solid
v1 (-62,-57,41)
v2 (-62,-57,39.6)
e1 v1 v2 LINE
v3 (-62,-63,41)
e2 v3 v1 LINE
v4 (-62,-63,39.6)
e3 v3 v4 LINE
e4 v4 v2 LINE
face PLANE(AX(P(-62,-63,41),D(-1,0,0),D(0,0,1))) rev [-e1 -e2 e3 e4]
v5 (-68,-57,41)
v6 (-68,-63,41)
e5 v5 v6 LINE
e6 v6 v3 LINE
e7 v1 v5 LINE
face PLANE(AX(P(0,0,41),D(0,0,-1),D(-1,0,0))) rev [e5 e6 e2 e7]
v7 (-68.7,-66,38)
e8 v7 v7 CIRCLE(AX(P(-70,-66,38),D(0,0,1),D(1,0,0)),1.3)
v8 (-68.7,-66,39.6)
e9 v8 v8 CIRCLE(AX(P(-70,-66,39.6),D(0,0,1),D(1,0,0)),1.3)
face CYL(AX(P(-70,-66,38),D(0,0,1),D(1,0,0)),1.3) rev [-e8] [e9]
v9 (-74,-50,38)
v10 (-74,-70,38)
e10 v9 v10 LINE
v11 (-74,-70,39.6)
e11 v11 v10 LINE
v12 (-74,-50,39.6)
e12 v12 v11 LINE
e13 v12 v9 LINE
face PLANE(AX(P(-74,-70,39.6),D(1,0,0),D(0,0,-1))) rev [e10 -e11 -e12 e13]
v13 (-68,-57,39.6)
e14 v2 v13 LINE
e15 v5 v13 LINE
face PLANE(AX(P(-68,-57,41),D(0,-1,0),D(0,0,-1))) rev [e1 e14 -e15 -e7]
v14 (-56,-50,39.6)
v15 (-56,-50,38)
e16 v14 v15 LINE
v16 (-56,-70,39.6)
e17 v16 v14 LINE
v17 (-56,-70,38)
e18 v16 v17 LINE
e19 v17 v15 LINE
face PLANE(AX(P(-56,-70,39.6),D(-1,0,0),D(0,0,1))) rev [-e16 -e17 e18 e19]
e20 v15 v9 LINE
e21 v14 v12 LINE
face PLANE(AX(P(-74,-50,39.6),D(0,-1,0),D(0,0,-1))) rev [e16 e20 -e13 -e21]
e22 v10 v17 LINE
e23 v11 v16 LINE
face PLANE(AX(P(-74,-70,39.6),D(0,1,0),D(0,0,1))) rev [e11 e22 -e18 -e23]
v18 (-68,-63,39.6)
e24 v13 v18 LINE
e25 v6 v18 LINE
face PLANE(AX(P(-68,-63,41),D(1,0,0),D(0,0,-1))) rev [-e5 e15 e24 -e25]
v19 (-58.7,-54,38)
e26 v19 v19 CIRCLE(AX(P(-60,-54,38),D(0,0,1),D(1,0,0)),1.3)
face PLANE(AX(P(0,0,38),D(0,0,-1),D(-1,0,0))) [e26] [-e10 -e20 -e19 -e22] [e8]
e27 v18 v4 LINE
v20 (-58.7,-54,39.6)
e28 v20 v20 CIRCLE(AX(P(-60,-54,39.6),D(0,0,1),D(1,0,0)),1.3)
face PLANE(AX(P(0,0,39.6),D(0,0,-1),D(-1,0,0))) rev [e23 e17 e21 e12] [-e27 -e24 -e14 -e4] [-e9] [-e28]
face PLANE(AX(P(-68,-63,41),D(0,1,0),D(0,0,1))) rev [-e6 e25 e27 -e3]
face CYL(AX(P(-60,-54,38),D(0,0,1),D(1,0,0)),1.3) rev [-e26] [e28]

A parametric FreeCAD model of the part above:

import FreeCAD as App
import Part
import Sketcher
from FreeCAD import Vector

doc = App.newDocument("Part")
body = doc.addObject("PartDesign::Body", "Body")

# Sketch on XY plane
sketch1 = body.newObject("Sketcher::SketchObject", "Sketch")
sketch1.AttachmentSupport = (doc.getObject("XY_Plane"), [""])
sketch1.MapMode = "FlatFace"
sketch1.AttachmentOffset = App.Placement(Vector(0, 0, 38), App.Rotation())
sketch1.addGeometry([
    Part.LineSegment(Vector(-74, -50, 0), Vector(-74, -70, 0)),
    Part.LineSegment(Vector(-74, -70, 0), Vector(-56, -70, 0)),
    Part.LineSegment(Vector(-56, -70, 0), Vector(-56, -50, 0)),
    Part.LineSegment(Vector(-56, -50, 0), Vector(-74, -50, 0)),
], False)
sketch1.addConstraint([
    Sketcher.Constraint("Coincident", 0, 2, 1, 1),
    Sketcher.Constraint("Coincident", 1, 2, 2, 1),
    Sketcher.Constraint("Coincident", 2, 2, 3, 1),
    Sketcher.Constraint("Coincident", 3, 2, 0, 1),
    Sketcher.Constraint("Vertical", 0),
    Sketcher.Constraint("Horizontal", 1),
    Sketcher.Constraint("Vertical", 2),
    Sketcher.Constraint("Horizontal", 3),
    Sketcher.Constraint("DistanceX", 1, 1, 1, 2, 18.0),
    Sketcher.Constraint("DistanceY", 0, 2, 0, 1, 20.0),
    Sketcher.Constraint("DistanceX", 0, 2, -1, 1, 74.0),
    Sketcher.Constraint("DistanceY", 0, 2, -1, 1, 70.0),
])
pad1 = body.newObject("PartDesign::Pad", "Pad")
pad1.Profile = sketch1
pad1.Length = 1.6

# Sketch on XY plane
sketch2 = body.newObject("Sketcher::SketchObject", "Sketch001")
sketch2.AttachmentSupport = (doc.getObject("XY_Plane"), [""])
sketch2.MapMode = "FlatFace"
sketch2.AttachmentOffset = App.Placement(Vector(0, 0, 39.6), App.Rotation())
sketch2.addGeometry([
    Part.LineSegment(Vector(-68, -57, 0), Vector(-68, -63, 0)),
    Part.LineSegment(Vector(-68, -63, 0), Vector(-62, -63, 0)),
    Part.LineSegment(Vector(-62, -63, 0), Vector(-62, -57, 0)),
    Part.LineSegment(Vector(-62, -57, 0), Vector(-68, -57, 0)),
], False)
sketch2.addConstraint([
    Sketcher.Constraint("Coincident", 0, 2, 1, 1),
    Sketcher.Constraint("Coincident", 1, 2, 2, 1),
    Sketcher.Constraint("Coincident", 2, 2, 3, 1),
    Sketcher.Constraint("Coincident", 3, 2, 0, 1),
    Sketcher.Constraint("Vertical", 0),
    Sketcher.Constraint("Horizontal", 1),
    Sketcher.Constraint("Vertical", 2),
    Sketcher.Constraint("Horizontal", 3),
    Sketcher.Constraint("Equal", 3, 0),
    Sketcher.Constraint("DistanceX", 1, 1, 1, 2, 6.0),
    Sketcher.Constraint("DistanceX", 0, 2, -1, 1, 68.0),
    Sketcher.Constraint("DistanceY", 0, 2, -1, 1, 63.0),
])
pad2 = body.newObject("PartDesign::Pad", "Pad001")
pad2.Profile = sketch2
pad2.Length = 1.4

# Sketch on XY plane
sketch3 = body.newObject("Sketcher::SketchObject", "Sketch002")
sketch3.AttachmentSupport = (doc.getObject("XY_Plane"), [""])
sketch3.MapMode = "FlatFace"
sketch3.AttachmentOffset = App.Placement(Vector(0, 0, 39.6), App.Rotation())
sketch3.addGeometry([
    Part.Circle(Vector(-70, -66, 0), Vector(0, 0, 1), 1.3),
    Part.Circle(Vector(-60, -54, 0), Vector(0, 0, 1), 1.3),
], False)
sketch3.addConstraint([
    Sketcher.Constraint("Equal", 0, 1),
    Sketcher.Constraint("Diameter", 0, 2.6),
    Sketcher.Constraint("DistanceX", 0, 3, -1, 1, 70.0),
    Sketcher.Constraint("DistanceY", 0, 3, -1, 1, 66.0),
    Sketcher.Constraint("DistanceX", 1, 3, -1, 1, 60.0),
    Sketcher.Constraint("DistanceY", 1, 3, -1, 1, 54.0),
])
pocket1 = body.newObject("PartDesign::Pocket", "Pocket")
pocket1.Profile = sketch3
pocket1.Length = 1.6

doc.recompute()
